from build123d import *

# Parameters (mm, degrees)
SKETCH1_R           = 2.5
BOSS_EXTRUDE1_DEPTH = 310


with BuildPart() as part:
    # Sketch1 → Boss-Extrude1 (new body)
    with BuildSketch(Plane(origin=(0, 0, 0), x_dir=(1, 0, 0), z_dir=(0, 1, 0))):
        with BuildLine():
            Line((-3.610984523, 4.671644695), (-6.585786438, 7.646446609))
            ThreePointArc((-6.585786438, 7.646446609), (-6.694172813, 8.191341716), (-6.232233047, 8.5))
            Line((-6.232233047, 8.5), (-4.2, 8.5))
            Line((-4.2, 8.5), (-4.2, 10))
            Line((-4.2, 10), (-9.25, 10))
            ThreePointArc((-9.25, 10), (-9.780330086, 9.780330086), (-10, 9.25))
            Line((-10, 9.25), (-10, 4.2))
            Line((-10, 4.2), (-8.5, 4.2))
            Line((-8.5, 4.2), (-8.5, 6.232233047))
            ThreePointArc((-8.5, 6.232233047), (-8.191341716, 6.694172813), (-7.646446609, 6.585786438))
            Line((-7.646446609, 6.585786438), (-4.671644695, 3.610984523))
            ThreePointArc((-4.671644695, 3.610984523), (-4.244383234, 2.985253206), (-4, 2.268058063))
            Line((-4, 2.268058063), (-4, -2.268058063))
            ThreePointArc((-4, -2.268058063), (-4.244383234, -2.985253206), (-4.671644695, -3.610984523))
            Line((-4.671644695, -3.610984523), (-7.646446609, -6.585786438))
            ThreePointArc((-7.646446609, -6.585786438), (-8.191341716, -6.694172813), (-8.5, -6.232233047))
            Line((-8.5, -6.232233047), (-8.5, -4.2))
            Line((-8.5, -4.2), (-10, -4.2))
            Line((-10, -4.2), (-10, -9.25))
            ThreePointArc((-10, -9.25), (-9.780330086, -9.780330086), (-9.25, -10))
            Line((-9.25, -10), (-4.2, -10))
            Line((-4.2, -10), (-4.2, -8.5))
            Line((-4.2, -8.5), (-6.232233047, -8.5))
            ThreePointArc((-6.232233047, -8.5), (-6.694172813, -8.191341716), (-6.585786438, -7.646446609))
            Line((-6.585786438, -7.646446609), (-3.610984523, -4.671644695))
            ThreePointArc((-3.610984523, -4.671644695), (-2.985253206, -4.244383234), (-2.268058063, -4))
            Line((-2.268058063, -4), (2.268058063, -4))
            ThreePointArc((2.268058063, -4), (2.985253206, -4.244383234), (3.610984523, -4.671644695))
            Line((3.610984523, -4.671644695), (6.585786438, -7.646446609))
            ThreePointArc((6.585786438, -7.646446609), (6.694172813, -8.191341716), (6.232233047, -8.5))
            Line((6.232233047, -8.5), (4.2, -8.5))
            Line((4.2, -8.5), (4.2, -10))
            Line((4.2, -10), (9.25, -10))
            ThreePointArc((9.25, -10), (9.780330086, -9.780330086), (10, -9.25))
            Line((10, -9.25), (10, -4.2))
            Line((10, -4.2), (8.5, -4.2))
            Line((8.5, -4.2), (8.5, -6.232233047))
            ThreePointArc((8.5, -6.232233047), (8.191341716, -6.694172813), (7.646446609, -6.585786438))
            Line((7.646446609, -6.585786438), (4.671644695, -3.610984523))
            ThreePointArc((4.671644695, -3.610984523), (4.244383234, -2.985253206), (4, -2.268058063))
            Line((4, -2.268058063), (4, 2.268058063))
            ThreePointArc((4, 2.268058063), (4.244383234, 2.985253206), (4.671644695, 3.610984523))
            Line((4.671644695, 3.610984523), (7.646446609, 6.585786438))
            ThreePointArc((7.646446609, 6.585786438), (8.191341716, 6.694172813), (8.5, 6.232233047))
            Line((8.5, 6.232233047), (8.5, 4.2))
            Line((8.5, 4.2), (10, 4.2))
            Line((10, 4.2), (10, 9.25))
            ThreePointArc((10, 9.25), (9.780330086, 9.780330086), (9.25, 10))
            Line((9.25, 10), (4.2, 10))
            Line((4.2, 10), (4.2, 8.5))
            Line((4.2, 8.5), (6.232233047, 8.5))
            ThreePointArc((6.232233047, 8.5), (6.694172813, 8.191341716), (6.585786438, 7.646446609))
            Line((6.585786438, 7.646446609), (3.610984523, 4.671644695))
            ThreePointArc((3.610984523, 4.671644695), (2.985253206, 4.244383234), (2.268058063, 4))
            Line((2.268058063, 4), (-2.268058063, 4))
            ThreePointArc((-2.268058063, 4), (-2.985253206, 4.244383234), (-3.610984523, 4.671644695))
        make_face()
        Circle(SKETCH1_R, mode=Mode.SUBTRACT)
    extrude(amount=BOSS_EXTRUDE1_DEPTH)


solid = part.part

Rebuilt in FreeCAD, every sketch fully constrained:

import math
import FreeCAD as App
import Part
import Sketcher

V = App.Vector
Q = App.Units.Quantity

doc = App.newDocument("Part")
body = doc.addObject("PartDesign::Body", "Body")

sketch1 = doc.addObject("Sketcher::SketchObject", "Sketch")
body.addObject(sketch1)
sketch1.AttachmentSupport = (doc.XZ_Plane, [""])
sketch1.MapMode = "FlatFace"
sketch1.addGeometry(Part.LineSegment(V(-3.6, -4.7, 0), V(-6.6, -7.6, 0)), False)
sketch1.addGeometry(Part.ArcOfCircle(Part.Circle(V(-6.2, -8, 0), V(0, 0, 1), 0.5), math.radians(135), math.radians(270)), False)
sketch1.addGeometry(Part.LineSegment(V(-6.2, -8.5, 0), V(-4.2, -8.5, 0)), False)
sketch1.addGeometry(Part.LineSegment(V(-4.2, -8.5, 0), V(-4.2, -10, 0)), False)
sketch1.addGeometry(Part.LineSegment(V(-4.2, -10, 0), V(-9.2, -10, 0)), False)
sketch1.addGeometry(Part.ArcOfCircle(Part.Circle(V(-9.2, -9.2, 0), V(0, 0, 1), 0.8), math.radians(180), math.radians(270)), False)
sketch1.addGeometry(Part.LineSegment(V(-10, -9.2, 0), V(-10, -4.2, 0)), False)
sketch1.addGeometry(Part.LineSegment(V(-10, -4.2, 0), V(-8.5, -4.2, 0)), False)
sketch1.addGeometry(Part.LineSegment(V(-8.5, -4.2, 0), V(-8.5, -6.2, 0)), False)
sketch1.addGeometry(Part.ArcOfCircle(Part.Circle(V(-8, -6.2, 0), V(0, 0, 1), 0.5), math.radians(-180), math.radians(-45)), False)
sketch1.addGeometry(Part.LineSegment(V(-7.6, -6.6, 0), V(-4.7, -3.6, 0)), False)
sketch1.addGeometry(Part.ArcOfCircle(Part.Circle(V(-6.8, -1.7, 0), V(0, 0, 1), 2.8), math.radians(-42), math.radians(-11)), False)
sketch1.addGeometry(Part.LineSegment(V(-4, -2.3, 0), V(-4, 2.3, 0)), False)
sketch1.addGeometry(Part.ArcOfCircle(Part.Circle(V(-6.8, 1.7, 0), V(0, 0, 1), 2.8), math.radians(11), math.radians(42)), False)
sketch1.addGeometry(Part.LineSegment(V(-4.7, 3.6, 0), V(-7.6, 6.6, 0)), False)
sketch1.addGeometry(Part.ArcOfCircle(Part.Circle(V(-8, 6.2, 0), V(0, 0, 1), 0.5), math.radians(45), math.radians(180)), False)
sketch1.addGeometry(Part.LineSegment(V(-8.5, 6.2, 0), V(-8.5, 4.2, 0)), False)
sketch1.addGeometry(Part.LineSegment(V(-8.5, 4.2, 0), V(-10, 4.2, 0)), False)
sketch1.addGeometry(Part.LineSegment(V(-10, 4.2, 0), V(-10, 9.2, 0)), False)
sketch1.addGeometry(Part.ArcOfCircle(Part.Circle(V(-9.2, 9.2, 0), V(0, 0, 1), 0.8), math.radians(90), math.radians(180)), False)
sketch1.addGeometry(Part.LineSegment(V(-9.2, 10, 0), V(-4.2, 10, 0)), False)
sketch1.addGeometry(Part.LineSegment(V(-4.2, 10, 0), V(-4.2, 8.5, 0)), False)
sketch1.addGeometry(Part.LineSegment(V(-4.2, 8.5, 0), V(-6.2, 8.5, 0)), False)
sketch1.addGeometry(Part.ArcOfCircle(Part.Circle(V(-6.2, 8, 0), V(0, 0, 1), 0.5), math.radians(90), math.radians(225)), False)
sketch1.addGeometry(Part.LineSegment(V(-6.6, 7.6, 0), V(-3.6, 4.7, 0)), False)
sketch1.addGeometry(Part.ArcOfCircle(Part.Circle(V(-1.7, 6.8, 0), V(0, 0, 1), 2.8), math.radians(-132), math.radians(-101)), False)
sketch1.addGeometry(Part.LineSegment(V(-2.3, 4, 0), V(2.3, 4, 0)), False)
sketch1.addGeometry(Part.ArcOfCircle(Part.Circle(V(1.7, 6.8, 0), V(0, 0, 1), 2.8), math.radians(-79), math.radians(-48)), False)
sketch1.addGeometry(Part.LineSegment(V(3.6, 4.7, 0), V(6.6, 7.6, 0)), False)
sketch1.addGeometry(Part.ArcOfCircle(Part.Circle(V(6.2, 8, 0), V(0, 0, 1), 0.5), math.radians(-45), math.radians(90)), False)
sketch1.addGeometry(Part.LineSegment(V(6.2, 8.5, 0), V(4.2, 8.5, 0)), False)
sketch1.addGeometry(Part.LineSegment(V(4.2, 8.5, 0), V(4.2, 10, 0)), False)
sketch1.addGeometry(Part.LineSegment(V(4.2, 10, 0), V(9.2, 10, 0)), False)
sketch1.addGeometry(Part.ArcOfCircle(Part.Circle(V(9.2, 9.2, 0), V(0, 0, 1), 0.8), math.radians(0), math.radians(90)), False)
sketch1.addGeometry(Part.LineSegment(V(10, 9.2, 0), V(10, 4.2, 0)), False)
sketch1.addGeometry(Part.LineSegment(V(10, 4.2, 0), V(8.5, 4.2, 0)), False)
sketch1.addGeometry(Part.LineSegment(V(8.5, 4.2, 0), V(8.5, 6.2, 0)), False)
sketch1.addGeometry(Part.ArcOfCircle(Part.Circle(V(8, 6.2, 0), V(0, 0, 1), 0.5), math.radians(0), math.radians(135)), False)
sketch1.addGeometry(Part.LineSegment(V(7.6, 6.6, 0), V(4.7, 3.6, 0)), False)
sketch1.addGeometry(Part.ArcOfCircle(Part.Circle(V(6.8, 1.7, 0), V(0, 0, 1), 2.8), math.radians(138), math.radians(169)), False)
sketch1.addGeometry(Part.LineSegment(V(4, 2.3, 0), V(4, -2.3, 0)), False)
sketch1.addGeometry(Part.ArcOfCircle(Part.Circle(V(6.8, -1.7, 0), V(0, 0, 1), 2.8), math.radians(-169), math.radians(-138)), False)
sketch1.addGeometry(Part.LineSegment(V(4.7, -3.6, 0), V(7.6, -6.6, 0)), False)
sketch1.addGeometry(Part.ArcOfCircle(Part.Circle(V(8, -6.2, 0), V(0, 0, 1), 0.5), math.radians(-135), math.radians(0)), False)
sketch1.addGeometry(Part.LineSegment(V(8.5, -6.2, 0), V(8.5, -4.2, 0)), False)
sketch1.addGeometry(Part.LineSegment(V(8.5, -4.2, 0), V(10, -4.2, 0)), False)
sketch1.addGeometry(Part.LineSegment(V(10, -4.2, 0), V(10, -9.2, 0)), False)
sketch1.addGeometry(Part.ArcOfCircle(Part.Circle(V(9.2, -9.2, 0), V(0, 0, 1), 0.8), math.radians(-90), math.radians(0)), False)
sketch1.addGeometry(Part.LineSegment(V(9.2, -10, 0), V(4.2, -10, 0)), False)
sketch1.addGeometry(Part.LineSegment(V(4.2, -10, 0), V(4.2, -8.5, 0)), False)
sketch1.addGeometry(Part.LineSegment(V(4.2, -8.5, 0), V(6.2, -8.5, 0)), False)
sketch1.addGeometry(Part.ArcOfCircle(Part.Circle(V(6.2, -8, 0), V(0, 0, 1), 0.5), math.radians(-90), math.radians(45)), False)
sketch1.addGeometry(Part.LineSegment(V(6.6, -7.6, 0), V(3.6, -4.7, 0)), False)
sketch1.addGeometry(Part.ArcOfCircle(Part.Circle(V(1.7, -6.8, 0), V(0, 0, 1), 2.8), math.radians(48), math.radians(79)), False)
sketch1.addGeometry(Part.LineSegment(V(2.3, -4, 0), V(-2.3, -4, 0)), False)
sketch1.addGeometry(Part.ArcOfCircle(Part.Circle(V(-1.7, -6.8, 0), V(0, 0, 1), 2.8), math.radians(101), math.radians(132)), False)
sketch1.addGeometry(Part.Circle(V(0, 0, 0), V(0, 0, 1), 2.5), False)
sketch1.addConstraint(Sketcher.Constraint("Tangent", 0, 2, 1, 1))
sketch1.addConstraint(Sketcher.Constraint("Tangent", 1, 2, 2, 1))
sketch1.addConstraint(Sketcher.Constraint("Coincident", 2, 2, 3, 1))
sketch1.addConstraint(Sketcher.Constraint("Coincident", 3, 2, 4, 1))
sketch1.addConstraint(Sketcher.Constraint("Tangent", 4, 2, 5, 2))
sketch1.addConstraint(Sketcher.Constraint("Tangent", 5, 1, 6, 1))
sketch1.addConstraint(Sketcher.Constraint("Coincident", 6, 2, 7, 1))
sketch1.addConstraint(Sketcher.Constraint("Coincident", 7, 2, 8, 1))
sketch1.addConstraint(Sketcher.Constraint("Tangent", 8, 2, 9, 1))
sketch1.addConstraint(Sketcher.Constraint("Tangent", 9, 2, 10, 1))
sketch1.addConstraint(Sketcher.Constraint("Coincident", 10, 2, 11, 1))
sketch1.addConstraint(Sketcher.Constraint("Coincident", 11, 2, 12, 1))
sketch1.addConstraint(Sketcher.Constraint("Coincident", 12, 2, 13, 1))
sketch1.addConstraint(Sketcher.Constraint("Coincident", 13, 2, 14, 1))
sketch1.addConstraint(Sketcher.Constraint("Tangent", 14, 2, 15, 1))
sketch1.addConstraint(Sketcher.Constraint("Tangent", 15, 2, 16, 1))
sketch1.addConstraint(Sketcher.Constraint("Coincident", 16, 2, 17, 1))
sketch1.addConstraint(Sketcher.Constraint("Coincident", 17, 2, 18, 1))
sketch1.addConstraint(Sketcher.Constraint("Tangent", 18, 2, 19, 2))
sketch1.addConstraint(Sketcher.Constraint("Tangent", 19, 1, 20, 1))
sketch1.addConstraint(Sketcher.Constraint("Coincident", 20, 2, 21, 1))
sketch1.addConstraint(Sketcher.Constraint("Coincident", 21, 2, 22, 1))
sketch1.addConstraint(Sketcher.Constraint("Tangent", 22, 2, 23, 1))
sketch1.addConstraint(Sketcher.Constraint("Tangent", 23, 2, 24, 1))
sketch1.addConstraint(Sketcher.Constraint("Coincident", 24, 2, 25, 1))
sketch1.addConstraint(Sketcher.Constraint("Coincident", 25, 2, 26, 1))
sketch1.addConstraint(Sketcher.Constraint("Coincident", 26, 2, 27, 1))
sketch1.addConstraint(Sketcher.Constraint("Coincident", 27, 2, 28, 1))
sketch1.addConstraint(Sketcher.Constraint("Tangent", 28, 2, 29, 1))
sketch1.addConstraint(Sketcher.Constraint("Tangent", 29, 2, 30, 1))
sketch1.addConstraint(Sketcher.Constraint("Coincident", 30, 2, 31, 1))
sketch1.addConstraint(Sketcher.Constraint("Coincident", 31, 2, 32, 1))
sketch1.addConstraint(Sketcher.Constraint("Tangent", 32, 2, 33, 2))
sketch1.addConstraint(Sketcher.Constraint("Tangent", 33, 1, 34, 1))
sketch1.addConstraint(Sketcher.Constraint("Coincident", 34, 2, 35, 1))
sketch1.addConstraint(Sketcher.Constraint("Coincident", 35, 2, 36, 1))
sketch1.addConstraint(Sketcher.Constraint("Tangent", 36, 2, 37, 1))
sketch1.addConstraint(Sketcher.Constraint("Tangent", 37, 2, 38, 1))
sketch1.addConstraint(Sketcher.Constraint("Coincident", 38, 2, 39, 1))
sketch1.addConstraint(Sketcher.Constraint("Coincident", 39, 2, 40, 1))
sketch1.addConstraint(Sketcher.Constraint("Coincident", 40, 2, 41, 1))
sketch1.addConstraint(Sketcher.Constraint("Coincident", 41, 2, 42, 1))
sketch1.addConstraint(Sketcher.Constraint("Tangent", 42, 2, 43, 1))
sketch1.addConstraint(Sketcher.Constraint("Tangent", 43, 2, 44, 1))
sketch1.addConstraint(Sketcher.Constraint("Coincident", 44, 2, 45, 1))
sketch1.addConstraint(Sketcher.Constraint("Coincident", 45, 2, 46, 1))
sketch1.addConstraint(Sketcher.Constraint("Tangent", 46, 2, 47, 2))
sketch1.addConstraint(Sketcher.Constraint("Tangent", 47, 1, 48, 1))
sketch1.addConstraint(Sketcher.Constraint("Coincident", 48, 2, 49, 1))
sketch1.addConstraint(Sketcher.Constraint("Coincident", 49, 2, 50, 1))
sketch1.addConstraint(Sketcher.Constraint("Tangent", 50, 2, 51, 1))
sketch1.addConstraint(Sketcher.Constraint("Tangent", 51, 2, 52, 1))
sketch1.addConstraint(Sketcher.Constraint("Coincident", 52, 2, 53, 1))
sketch1.addConstraint(Sketcher.Constraint("Coincident", 53, 2, 54, 1))
sketch1.addConstraint(Sketcher.Constraint("Coincident", 54, 2, 55, 1))
sketch1.addConstraint(Sketcher.Constraint("Coincident", 55, 2, 0, 1))
sketch1.addConstraint(Sketcher.Constraint("Horizontal", 2))
sketch1.addConstraint(Sketcher.Constraint("Vertical", 3))
sketch1.addConstraint(Sketcher.Constraint("Horizontal", 4))
sketch1.addConstraint(Sketcher.Constraint("Vertical", 6))
sketch1.addConstraint(Sketcher.Constraint("Horizontal", 7))
sketch1.addConstraint(Sketcher.Constraint("Vertical", 8))
sketch1.addConstraint(Sketcher.Constraint("Vertical", 12))
sketch1.addConstraint(Sketcher.Constraint("Vertical", 16))
sketch1.addConstraint(Sketcher.Constraint("Horizontal", 17))
sketch1.addConstraint(Sketcher.Constraint("Vertical", 18))
sketch1.addConstraint(Sketcher.Constraint("Horizontal", 20))
sketch1.addConstraint(Sketcher.Constraint("Vertical", 21))
sketch1.addConstraint(Sketcher.Constraint("Horizontal", 22))
sketch1.addConstraint(Sketcher.Constraint("Horizontal", 26))
sketch1.addConstraint(Sketcher.Constraint("Horizontal", 30))
sketch1.addConstraint(Sketcher.Constraint("Vertical", 31))
sketch1.addConstraint(Sketcher.Constraint("Horizontal", 32))
sketch1.addConstraint(Sketcher.Constraint("Vertical", 34))
sketch1.addConstraint(Sketcher.Constraint("Horizontal", 35))
sketch1.addConstraint(Sketcher.Constraint("Vertical", 36))
sketch1.addConstraint(Sketcher.Constraint("Vertical", 40))
sketch1.addConstraint(Sketcher.Constraint("Vertical", 44))
sketch1.addConstraint(Sketcher.Constraint("Horizontal", 45))
sketch1.addConstraint(Sketcher.Constraint("Vertical", 46))
sketch1.addConstraint(Sketcher.Constraint("Horizontal", 48))
sketch1.addConstraint(Sketcher.Constraint("Vertical", 49))
sketch1.addConstraint(Sketcher.Constraint("Horizontal", 50))
sketch1.addConstraint(Sketcher.Constraint("Horizontal", 54))
sketch1.addConstraint(Sketcher.Constraint("Coincident", 56, 3, -1, 1))
sketch1.addConstraint(Sketcher.Constraint("Equal", 1, 9))
sketch1.addConstraint(Sketcher.Constraint("Equal", 11, 13))
sketch1.addConstraint(Sketcher.Constraint("Equal", 9, 15))
sketch1.addConstraint(Sketcher.Constraint("Equal", 5, 19))
sketch1.addConstraint(Sketcher.Constraint("Equal", 15, 23))
sketch1.addConstraint(Sketcher.Constraint("Equal", 13, 25))
sketch1.addConstraint(Sketcher.Constraint("Equal", 25, 27))
sketch1.addConstraint(Sketcher.Constraint("Equal", 23, 29))
sketch1.addConstraint(Sketcher.Constraint("Equal", 19, 33))
sketch1.addConstraint(Sketcher.Constraint("Equal", 29, 37))
sketch1.addConstraint(Sketcher.Constraint("Equal", 27, 39))
sketch1.addConstraint(Sketcher.Constraint("Equal", 39, 41))
sketch1.addConstraint(Sketcher.Constraint("Equal", 37, 43))
sketch1.addConstraint(Sketcher.Constraint("Equal", 33, 47))
sketch1.addConstraint(Sketcher.Constraint("Equal", 43, 51))
sketch1.addConstraint(Sketcher.Constraint("Equal", 41, 53))
sketch1.addConstraint(Sketcher.Constraint("Equal", 53, 55))
sketch1.addConstraint(Sketcher.Constraint("Symmetric", 1, 3, 29, 3, -1, 1))
sketch1.addConstraint(Sketcher.Constraint("Symmetric", 5, 3, 33, 3, -1, 1))
sketch1.addConstraint(Sketcher.Constraint("Symmetric", 9, 3, 37, 3, -1, 1))
sketch1.addConstraint(Sketcher.Constraint("Symmetric", 11, 3, 39, 3, -1, 1))
sketch1.addConstraint(Sketcher.Constraint("Symmetric", 13, 3, 41, 3, -1, 1))
sketch1.addConstraint(Sketcher.Constraint("Symmetric", 15, 3, 43, 3, -1, 1))
sketch1.addConstraint(Sketcher.Constraint("Symmetric", 19, 3, 47, 3, -1, 1))
sketch1.addConstraint(Sketcher.Constraint("Symmetric", 23, 3, 51, 3, -1, 1))
sketch1.addConstraint(Sketcher.Constraint("Symmetric", 25, 3, 53, 3, -1, 1))
sketch1.addConstraint(Sketcher.Constraint("Symmetric", 27, 3, 55, 3, -1, 1))
sketch1.addConstraint(Sketcher.Constraint("Symmetric", 25, 3, 27, 3, -2))
sketch1.addConstraint(Sketcher.Constraint("Symmetric", 23, 3, 29, 3, -2))
sketch1.addConstraint(Sketcher.Constraint("Symmetric", 19, 3, 33, 3, -2))
sketch1.addConstraint(Sketcher.Constraint("Symmetric", 15, 3, 37, 3, -2))
sketch1.addConstraint(Sketcher.Constraint("Symmetric", 13, 3, 39, 3, -2))
sketch1.addConstraint(Sketcher.Constraint("Parallel", 0, 10))
sketch1.addConstraint(Sketcher.Constraint("Perpendicular", 10, 14))
sketch1.addConstraint(Sketcher.Constraint("Parallel", 14, 24))
sketch1.addConstraint(Sketcher.Constraint("Perpendicular", 24, 28))
sketch1.addConstraint(Sketcher.Constraint("Parallel", 28, 38))
sketch1.addConstraint(Sketcher.Constraint("Perpendicular", 38, 42))
sketch1.addConstraint(Sketcher.Constraint("Parallel", 42, 52))
sketch1.addConstraint(Sketcher.Constraint("Horizontal", 24, 2, 27, 2))
sketch1.addConstraint(Sketcher.Constraint("Horizontal", 17, 2, 34, 2))
sketch1.addConstraint(Sketcher.Constraint("Horizontal", 12, 2, 39, 2))
sketch1.addConstraint(Sketcher.Constraint("Horizontal", 7, 2, 44, 2))
sketch1.addConstraint(Sketcher.Constraint("Vertical", 3, 2, 20, 2))
sketch1.addConstraint(Sketcher.Constraint("Vertical", 31, 2, 48, 2))
sketch1.addConstraint(Sketcher.Constraint("Vertical", 26, 2, 53, 2))
sketch1.addConstraint(Sketcher.Constraint("Equal", 22, 30))
sketch1.addConstraint(Sketcher.Constraint("Equal", 45, 3))
sketch1.addConstraint(Sketcher.Constraint("Equal", 48, 6))
sketch1.addConstraint(Sketcher.Constraint("Equal", 50, 8))
sketch1.addConstraint(Sketcher.Constraint("Equal", 54, 12))
sketch1.addConstraint(Sketcher.Constraint("Equal", 8, 16))
sketch1.addConstraint(Sketcher.Constraint("Equal", 0, 10))
sketch1.addConstraint(Sketcher.Constraint("Diameter", 56, Q("5 mm")))
sketch1.addConstraint(Sketcher.Constraint("Radius", 1, Q("0.5 mm")))
sketch1.addConstraint(Sketcher.Constraint("Radius", 5, Q("0.75 mm")))
sketch1.addConstraint(Sketcher.Constraint("DistanceX", 7, 1, 7, 2, Q("1.5 mm")))
sketch1.addConstraint(Sketcher.Constraint("DistanceY", 1, 3, -1, 1, Q("8 mm")))
sketch1.addConstraint(Sketcher.Constraint("DistanceX", 9, 3, -1, 1, Q("8 mm")))
sketch1.addConstraint(Sketcher.Constraint("DistanceX", 11, 2, -1, 1, Q("4 mm")))
sketch1.addConstraint(Sketcher.Constraint("DistanceY", -1, 1, 25, 2, Q("4 mm")))
sketch1.addConstraint(Sketcher.Constraint("DistanceX", 4, 2, 4, 1, Q("5.05 mm")))
sketch1.addConstraint(Sketcher.Constraint("Radius", 11, Q("2.807638 mm")))
sketch1.addConstraint(Sketcher.Constraint("DistanceX", 2, 1, 2, 2, Q("2.032233 mm")))
sketch1.addConstraint(Sketcher.Constraint("DistanceX", 26, 1, 26, 2, Q("4.536116 mm")))
sketch1.addConstraint(Sketcher.Constraint("DistanceY", 11, 3, -1, 1, Q("1.729368 mm")))
pad1 = doc.addObject("PartDesign::Pad", "Pad")
body.addObject(pad1)
pad1.Profile = sketch1
pad1.Length = 310
pad1.Reversed = True

doc.recompute()
